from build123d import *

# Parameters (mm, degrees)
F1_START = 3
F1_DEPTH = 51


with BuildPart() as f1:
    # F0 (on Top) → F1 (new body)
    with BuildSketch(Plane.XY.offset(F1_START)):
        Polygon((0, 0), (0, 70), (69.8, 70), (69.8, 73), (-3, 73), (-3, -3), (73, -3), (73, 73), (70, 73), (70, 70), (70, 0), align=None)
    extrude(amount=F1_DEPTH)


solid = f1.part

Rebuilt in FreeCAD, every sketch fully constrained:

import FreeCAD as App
import Part
import Sketcher
from FreeCAD import Vector

doc = App.newDocument("Part")
body = doc.addObject("PartDesign::Body", "Body")

# Sketch on XY plane
sketch1 = body.newObject("Sketcher::SketchObject", "Sketch")
sketch1.AttachmentSupport = (doc.getObject("XY_Plane"), [""])
sketch1.MapMode = "FlatFace"
sketch1.AttachmentOffset = App.Placement(Vector(0, 0, 3), App.Rotation())
sketch1.addGeometry([
    Part.LineSegment(Vector(0, 0, 0), Vector(0, 70, 0)),  # 0
    Part.LineSegment(Vector(0, 70, 0), Vector(69.8, 70, 0)),  # 1
    Part.LineSegment(Vector(69.8, 70, 0), Vector(69.8, 73, 0)),  # 2
    Part.LineSegment(Vector(69.8, 73, 0), Vector(-3, 73, 0)),  # 3
    Part.LineSegment(Vector(-3, 73, 0), Vector(-3, -3, 0)),  # 4
    Part.LineSegment(Vector(-3, -3, 0), Vector(73, -3, 0)),  # 5
    Part.LineSegment(Vector(73, -3, 0), Vector(73, 73, 0)),  # 6
    Part.LineSegment(Vector(73, 73, 0), Vector(70, 73, 0)),  # 7
    Part.LineSegment(Vector(70, 73, 0), Vector(70, 0, 0)),  # 8
    Part.LineSegment(Vector(70, 0, 0), Vector(0, 0, 0)),  # 9
], False)
sketch1.addConstraint([
    Sketcher.Constraint("Coincident", 0, 2, 1, 1),
    Sketcher.Constraint("Coincident", 1, 2, 2, 1),
    Sketcher.Constraint("Coincident", 2, 2, 3, 1),
    Sketcher.Constraint("Coincident", 3, 2, 4, 1),
    Sketcher.Constraint("Coincident", 4, 2, 5, 1),
    Sketcher.Constraint("Coincident", 5, 2, 6, 1),
    Sketcher.Constraint("Coincident", 6, 2, 7, 1),
    Sketcher.Constraint("Coincident", 7, 2, 8, 1),
    Sketcher.Constraint("Coincident", 8, 2, 9, 1),
    Sketcher.Constraint("Coincident", 9, 2, 0, 1),
    Sketcher.Constraint("Vertical", 0),
    Sketcher.Constraint("Horizontal", 1),
    Sketcher.Constraint("Vertical", 2),
    Sketcher.Constraint("Horizontal", 3),
    Sketcher.Constraint("Vertical", 4),
    Sketcher.Constraint("Horizontal", 5),
    Sketcher.Constraint("Vertical", 6),
    Sketcher.Constraint("Horizontal", 7),
    Sketcher.Constraint("Vertical", 8),
    Sketcher.Constraint("Horizontal", 9),
    Sketcher.Constraint("Coincident", 9, 2, -1, 1),
    Sketcher.Constraint("Horizontal", 3, 2, 6, 2),
    Sketcher.Constraint("Equal", 9, 0),
    Sketcher.Constraint("Equal", 7, 2),
    Sketcher.Constraint("Equal", 5, 4),
    Sketcher.Constraint("DistanceX", 5, 1, 5, 2, 76.0),
    Sketcher.Constraint("DistanceX", 7, 2, 7, 1, 3.0),
    Sketcher.Constraint("DistanceX", 9, 2, 9, 1, 70.0),
    Sketcher.Constraint("DistanceX", 1, 1, 1, 2, 69.8),
])
pad1 = body.newObject("PartDesign::Pad", "Pad")
pad1.Profile = sketch1
pad1.Length = 51

doc.recompute()
